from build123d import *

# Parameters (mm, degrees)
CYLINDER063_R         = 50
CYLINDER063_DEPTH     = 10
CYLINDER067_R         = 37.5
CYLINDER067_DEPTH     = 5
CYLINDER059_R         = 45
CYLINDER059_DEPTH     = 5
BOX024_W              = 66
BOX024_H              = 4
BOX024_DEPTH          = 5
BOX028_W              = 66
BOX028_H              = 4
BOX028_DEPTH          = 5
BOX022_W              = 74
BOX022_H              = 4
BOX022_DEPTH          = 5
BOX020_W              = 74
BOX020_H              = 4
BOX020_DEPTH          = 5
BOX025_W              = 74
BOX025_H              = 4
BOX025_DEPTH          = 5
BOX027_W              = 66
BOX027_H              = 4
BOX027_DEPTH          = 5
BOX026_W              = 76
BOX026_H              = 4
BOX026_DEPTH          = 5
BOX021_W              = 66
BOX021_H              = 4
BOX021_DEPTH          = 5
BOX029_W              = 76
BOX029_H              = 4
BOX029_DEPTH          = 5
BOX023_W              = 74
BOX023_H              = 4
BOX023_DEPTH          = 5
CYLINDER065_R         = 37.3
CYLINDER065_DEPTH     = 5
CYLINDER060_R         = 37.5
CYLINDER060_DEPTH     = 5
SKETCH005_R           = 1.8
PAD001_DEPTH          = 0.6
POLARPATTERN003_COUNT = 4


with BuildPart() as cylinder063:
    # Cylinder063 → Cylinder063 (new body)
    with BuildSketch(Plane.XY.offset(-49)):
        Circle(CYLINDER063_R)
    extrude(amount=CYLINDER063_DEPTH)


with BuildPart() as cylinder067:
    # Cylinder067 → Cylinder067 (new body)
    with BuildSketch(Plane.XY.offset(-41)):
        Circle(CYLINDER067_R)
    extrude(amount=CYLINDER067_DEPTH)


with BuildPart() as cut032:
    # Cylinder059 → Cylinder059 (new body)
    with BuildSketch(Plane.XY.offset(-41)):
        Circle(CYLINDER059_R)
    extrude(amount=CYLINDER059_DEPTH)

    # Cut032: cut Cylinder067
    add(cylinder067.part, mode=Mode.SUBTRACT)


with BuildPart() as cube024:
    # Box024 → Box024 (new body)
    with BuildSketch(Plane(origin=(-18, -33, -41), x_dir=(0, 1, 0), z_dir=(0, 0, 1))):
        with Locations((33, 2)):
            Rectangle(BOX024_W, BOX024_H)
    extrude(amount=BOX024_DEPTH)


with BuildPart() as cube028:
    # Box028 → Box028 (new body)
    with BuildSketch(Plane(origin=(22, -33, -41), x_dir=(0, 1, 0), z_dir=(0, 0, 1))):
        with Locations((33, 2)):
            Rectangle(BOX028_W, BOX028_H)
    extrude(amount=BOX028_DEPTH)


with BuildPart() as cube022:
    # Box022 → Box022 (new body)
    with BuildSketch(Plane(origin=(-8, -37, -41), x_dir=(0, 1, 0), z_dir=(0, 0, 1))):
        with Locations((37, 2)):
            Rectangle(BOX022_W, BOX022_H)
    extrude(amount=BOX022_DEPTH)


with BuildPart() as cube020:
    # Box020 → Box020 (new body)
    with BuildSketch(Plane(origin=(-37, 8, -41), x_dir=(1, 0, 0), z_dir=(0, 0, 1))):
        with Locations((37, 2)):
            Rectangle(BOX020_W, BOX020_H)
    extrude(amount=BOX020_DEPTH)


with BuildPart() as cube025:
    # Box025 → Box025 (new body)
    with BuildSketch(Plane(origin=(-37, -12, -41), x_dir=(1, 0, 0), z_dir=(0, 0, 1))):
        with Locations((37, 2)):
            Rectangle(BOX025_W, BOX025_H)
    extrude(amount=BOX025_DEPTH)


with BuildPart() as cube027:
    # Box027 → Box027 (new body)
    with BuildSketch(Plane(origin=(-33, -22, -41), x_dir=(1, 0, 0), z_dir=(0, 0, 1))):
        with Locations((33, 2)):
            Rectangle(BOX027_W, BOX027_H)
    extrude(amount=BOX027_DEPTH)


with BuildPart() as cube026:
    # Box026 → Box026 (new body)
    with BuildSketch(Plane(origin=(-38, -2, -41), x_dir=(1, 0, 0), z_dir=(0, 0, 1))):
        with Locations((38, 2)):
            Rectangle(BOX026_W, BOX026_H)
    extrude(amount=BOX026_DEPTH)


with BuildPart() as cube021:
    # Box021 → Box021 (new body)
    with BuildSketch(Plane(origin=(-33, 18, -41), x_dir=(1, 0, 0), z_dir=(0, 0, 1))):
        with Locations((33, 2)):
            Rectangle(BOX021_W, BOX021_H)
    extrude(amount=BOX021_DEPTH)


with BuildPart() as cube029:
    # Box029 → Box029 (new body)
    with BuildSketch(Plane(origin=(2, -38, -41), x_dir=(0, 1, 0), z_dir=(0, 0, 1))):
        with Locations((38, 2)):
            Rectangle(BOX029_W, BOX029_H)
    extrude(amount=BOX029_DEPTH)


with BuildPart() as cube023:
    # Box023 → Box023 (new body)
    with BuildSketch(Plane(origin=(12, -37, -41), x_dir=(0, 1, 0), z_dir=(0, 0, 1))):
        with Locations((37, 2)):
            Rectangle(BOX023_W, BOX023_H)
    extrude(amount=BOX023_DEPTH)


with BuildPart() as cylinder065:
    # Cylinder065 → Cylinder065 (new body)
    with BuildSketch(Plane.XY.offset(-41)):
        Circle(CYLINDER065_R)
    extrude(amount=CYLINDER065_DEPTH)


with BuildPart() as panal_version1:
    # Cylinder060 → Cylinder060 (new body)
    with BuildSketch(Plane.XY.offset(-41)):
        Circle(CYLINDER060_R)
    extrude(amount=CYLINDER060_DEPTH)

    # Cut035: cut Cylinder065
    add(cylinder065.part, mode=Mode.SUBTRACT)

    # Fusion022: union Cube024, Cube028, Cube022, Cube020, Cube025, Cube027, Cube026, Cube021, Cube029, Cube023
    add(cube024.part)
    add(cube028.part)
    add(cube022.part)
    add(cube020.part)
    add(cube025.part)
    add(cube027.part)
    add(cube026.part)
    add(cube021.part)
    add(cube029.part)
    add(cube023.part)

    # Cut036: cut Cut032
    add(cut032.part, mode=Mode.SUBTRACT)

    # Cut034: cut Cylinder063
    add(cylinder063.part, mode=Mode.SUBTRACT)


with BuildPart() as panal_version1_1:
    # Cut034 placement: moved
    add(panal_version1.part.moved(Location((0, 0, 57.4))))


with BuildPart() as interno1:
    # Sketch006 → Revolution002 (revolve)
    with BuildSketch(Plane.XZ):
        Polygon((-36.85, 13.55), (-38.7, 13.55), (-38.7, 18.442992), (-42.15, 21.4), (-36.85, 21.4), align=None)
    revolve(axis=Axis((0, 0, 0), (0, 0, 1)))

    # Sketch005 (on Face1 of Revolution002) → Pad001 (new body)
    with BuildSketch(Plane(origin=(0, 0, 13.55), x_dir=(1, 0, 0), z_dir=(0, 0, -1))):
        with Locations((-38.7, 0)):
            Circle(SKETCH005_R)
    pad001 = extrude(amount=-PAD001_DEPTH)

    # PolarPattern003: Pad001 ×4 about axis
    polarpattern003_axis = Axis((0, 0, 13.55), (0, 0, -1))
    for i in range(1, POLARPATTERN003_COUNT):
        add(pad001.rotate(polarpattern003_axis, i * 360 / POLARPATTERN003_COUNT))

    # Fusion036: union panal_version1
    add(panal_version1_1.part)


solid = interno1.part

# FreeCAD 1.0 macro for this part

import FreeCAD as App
import Part
import Sketcher
from FreeCAD import Vector
Q = App.Units.Quantity

doc = App.newDocument("Part")
body = doc.addObject("PartDesign::Body", "Body")

sketch1 = body.newObject("Sketcher::SketchObject", "Sketch")
sketch1.AttachmentSupport = (doc.getObject("XY_Plane"), [""])
sketch1.MapMode = "FlatFace"
sketch1.AttachmentOffset = App.Placement(Vector(0, 0, -49), App.Rotation())
sketch1.addGeometry(Part.Circle(Vector(0, 0, 0), Vector(0, 0, 1), 50), False)
sketch1.addConstraint([
    Sketcher.Constraint("Coincident", 0, 3, -1, 1),
    Sketcher.Constraint("Diameter", 0, 100.0),
])
pad1 = body.newObject("PartDesign::Pad", "Pad")
pad1.Profile = sketch1
pad1.Length = 10
body2 = doc.addObject("PartDesign::Body", "Body001")

sketch2 = body2.newObject("Sketcher::SketchObject", "Sketch001")
sketch2.AttachmentSupport = (doc.getObject("XY_Plane001"), [""])
sketch2.MapMode = "FlatFace"
sketch2.AttachmentOffset = App.Placement(Vector(0, 0, -41), App.Rotation())
sketch2.addGeometry(Part.Circle(Vector(0, 0, 0), Vector(0, 0, 1), 38), False)
sketch2.addConstraint([
    Sketcher.Constraint("Coincident", 0, 3, -1, 1),
    Sketcher.Constraint("Diameter", 0, 75.0),
])
pad2 = body2.newObject("PartDesign::Pad", "Pad001")
pad2.Profile = sketch2
pad2.Length = 5
body3 = doc.addObject("PartDesign::Body", "Body002")

sketch3 = body3.newObject("Sketcher::SketchObject", "Sketch002")
sketch3.AttachmentSupport = (doc.getObject("XY_Plane002"), [""])
sketch3.MapMode = "FlatFace"
sketch3.AttachmentOffset = App.Placement(Vector(0, 0, -41), App.Rotation())
sketch3.addGeometry(Part.Circle(Vector(0, 0, 0), Vector(0, 0, 1), 45), False)
sketch3.addConstraint([
    Sketcher.Constraint("Coincident", 0, 3, -1, 1),
    Sketcher.Constraint("Diameter", 0, 90.0),
])
pad3 = body3.newObject("PartDesign::Pad", "Pad002")
pad3.Profile = sketch3
pad3.Length = 5
doc.recompute()

boolean = body3.newObject("PartDesign::Boolean", "Boolean")
boolean.Type = "Cut"
boolean.addObjects([body2])
body4 = doc.addObject("PartDesign::Body", "Body003")

sketch4 = body4.newObject("Sketcher::SketchObject", "Sketch003")
sketch4.AttachmentSupport = (doc.getObject("XY_Plane003"), [""])
sketch4.MapMode = "FlatFace"
sketch4.AttachmentOffset = App.Placement(Vector(0, 0, -41), App.Rotation())
sketch4.addGeometry([
    Part.LineSegment(Vector(-22, -33, 0), Vector(-18, -33, 0)),
    Part.LineSegment(Vector(-18, -33, 0), Vector(-18, 33, 0)),
    Part.LineSegment(Vector(-18, 33, 0), Vector(-22, 33, 0)),
    Part.LineSegment(Vector(-22, 33, 0), Vector(-22, -33, 0)),
], False)
sketch4.addConstraint([
    Sketcher.Constraint("Coincident", 0, 2, 1, 1),
    Sketcher.Constraint("Coincident", 1, 2, 2, 1),
    Sketcher.Constraint("Coincident", 2, 2, 3, 1),
    Sketcher.Constraint("Coincident", 3, 2, 0, 1),
    Sketcher.Constraint("Horizontal", 0),
    Sketcher.Constraint("Vertical", 1),
    Sketcher.Constraint("Horizontal", 2),
    Sketcher.Constraint("Vertical", 3),
    Sketcher.Constraint("DistanceX", 0, 1, 0, 2, 4.0),
    Sketcher.Constraint("DistanceY", 1, 1, 1, 2, 66.0),
    Sketcher.Constraint("DistanceX", 0, 2, -1, 1, 18.0),
    Sketcher.Constraint("DistanceY", 0, 2, -1, 1, 33.0),
])
pad4 = body4.newObject("PartDesign::Pad", "Pad003")
pad4.Profile = sketch4
pad4.Length = 5
body5 = doc.addObject("PartDesign::Body", "Body004")

sketch5 = body5.newObject("Sketcher::SketchObject", "Sketch004")
sketch5.AttachmentSupport = (doc.getObject("XY_Plane004"), [""])
sketch5.MapMode = "FlatFace"
sketch5.AttachmentOffset = App.Placement(Vector(0, 0, -41), App.Rotation())
sketch5.addGeometry([
    Part.LineSegment(Vector(18, -33, 0), Vector(22, -33, 0)),
    Part.LineSegment(Vector(22, -33, 0), Vector(22, 33, 0)),
    Part.LineSegment(Vector(22, 33, 0), Vector(18, 33, 0)),
    Part.LineSegment(Vector(18, 33, 0), Vector(18, -33, 0)),
], False)
sketch5.addConstraint([
    Sketcher.Constraint("Coincident", 0, 2, 1, 1),
    Sketcher.Constraint("Coincident", 1, 2, 2, 1),
    Sketcher.Constraint("Coincident", 2, 2, 3, 1),
    Sketcher.Constraint("Coincident", 3, 2, 0, 1),
    Sketcher.Constraint("Horizontal", 0),
    Sketcher.Constraint("Vertical", 1),
    Sketcher.Constraint("Horizontal", 2),
    Sketcher.Constraint("Vertical", 3),
    Sketcher.Constraint("DistanceX", 0, 1, 0, 2, 4.0),
    Sketcher.Constraint("DistanceY", 1, 1, 1, 2, 66.0),
    Sketcher.Constraint("DistanceX", -1, 1, 0, 2, 22.0),
    Sketcher.Constraint("DistanceY", 0, 2, -1, 1, 33.0),
])
pad5 = body5.newObject("PartDesign::Pad", "Pad004")
pad5.Profile = sketch5
pad5.Length = 5
body6 = doc.addObject("PartDesign::Body", "Body005")

sketch6 = body6.newObject("Sketcher::SketchObject", "Sketch005")
sketch6.AttachmentSupport = (doc.getObject("XY_Plane005"), [""])
sketch6.MapMode = "FlatFace"
sketch6.AttachmentOffset = App.Placement(Vector(0, 0, -41), App.Rotation())
sketch6.addGeometry([
    Part.LineSegment(Vector(-12, -37, 0), Vector(-8, -37, 0)),
    Part.LineSegment(Vector(-8, -37, 0), Vector(-8, 37, 0)),
    Part.LineSegment(Vector(-8, 37, 0), Vector(-12, 37, 0)),
    Part.LineSegment(Vector(-12, 37, 0), Vector(-12, -37, 0)),
], False)
sketch6.addConstraint([
    Sketcher.Constraint("Coincident", 0, 2, 1, 1),
    Sketcher.Constraint("Coincident", 1, 2, 2, 1),
    Sketcher.Constraint("Coincident", 2, 2, 3, 1),
    Sketcher.Constraint("Coincident", 3, 2, 0, 1),
    Sketcher.Constraint("Horizontal", 0),
    Sketcher.Constraint("Vertical", 1),
    Sketcher.Constraint("Horizontal", 2),
    Sketcher.Constraint("Vertical", 3),
    Sketcher.Constraint("DistanceX", 0, 1, 0, 2, 4.0),
    Sketcher.Constraint("DistanceY", 1, 1, 1, 2, 74.0),
    Sketcher.Constraint("DistanceX", 0, 2, -1, 1, 8.0),
    Sketcher.Constraint("DistanceY", 0, 2, -1, 1, 37.0),
])
pad6 = body6.newObject("PartDesign::Pad", "Pad005")
pad6.Profile = sketch6
pad6.Length = 5
body7 = doc.addObject("PartDesign::Body", "Body006")

sketch7 = body7.newObject("Sketcher::SketchObject", "Sketch006")
sketch7.AttachmentSupport = (doc.getObject("XY_Plane006"), [""])
sketch7.MapMode = "FlatFace"
sketch7.AttachmentOffset = App.Placement(Vector(0, 0, -41), App.Rotation())
sketch7.addGeometry([
    Part.LineSegment(Vector(-37, 12, 0), Vector(-37, 8, 0)),
    Part.LineSegment(Vector(-37, 8, 0), Vector(37, 8, 0)),
    Part.LineSegment(Vector(37, 8, 0), Vector(37, 12, 0)),
    Part.LineSegment(Vector(37, 12, 0), Vector(-37, 12, 0)),
], False)
sketch7.addConstraint([
    Sketcher.Constraint("Coincident", 0, 2, 1, 1),
    Sketcher.Constraint("Coincident", 1, 2, 2, 1),
    Sketcher.Constraint("Coincident", 2, 2, 3, 1),
    Sketcher.Constraint("Coincident", 3, 2, 0, 1),
    Sketcher.Constraint("Vertical", 0),
    Sketcher.Constraint("Horizontal", 1),
    Sketcher.Constraint("Vertical", 2),
    Sketcher.Constraint("Horizontal", 3),
    Sketcher.Constraint("DistanceX", 1, 1, 1, 2, 74.0),
    Sketcher.Constraint("DistanceY", 0, 2, 0, 1, 4.0),
    Sketcher.Constraint("DistanceX", 0, 2, -1, 1, 37.0),
    Sketcher.Constraint("DistanceY", -1, 1, 0, 2, 8.0),
])
pad7 = body7.newObject("PartDesign::Pad", "Pad006")
pad7.Profile = sketch7
pad7.Length = 5
body8 = doc.addObject("PartDesign::Body", "Body007")

sketch8 = body8.newObject("Sketcher::SketchObject", "Sketch007")
sketch8.AttachmentSupport = (doc.getObject("XY_Plane007"), [""])
sketch8.MapMode = "FlatFace"
sketch8.AttachmentOffset = App.Placement(Vector(0, 0, -41), App.Rotation())
sketch8.addGeometry([
    Part.LineSegment(Vector(-37, -8, 0), Vector(-37, -12, 0)),
    Part.LineSegment(Vector(-37, -12, 0), Vector(37, -12, 0)),
    Part.LineSegment(Vector(37, -12, 0), Vector(37, -8, 0)),
    Part.LineSegment(Vector(37, -8, 0), Vector(-37, -8, 0)),
], False)
sketch8.addConstraint([
    Sketcher.Constraint("Coincident", 0, 2, 1, 1),
    Sketcher.Constraint("Coincident", 1, 2, 2, 1),
    Sketcher.Constraint("Coincident", 2, 2, 3, 1),
    Sketcher.Constraint("Coincident", 3, 2, 0, 1),
    Sketcher.Constraint("Vertical", 0),
    Sketcher.Constraint("Horizontal", 1),
    Sketcher.Constraint("Vertical", 2),
    Sketcher.Constraint("Horizontal", 3),
    Sketcher.Constraint("DistanceX", 1, 1, 1, 2, 74.0),
    Sketcher.Constraint("DistanceY", 0, 2, 0, 1, 4.0),
    Sketcher.Constraint("DistanceX", 0, 2, -1, 1, 37.0),
    Sketcher.Constraint("DistanceY", 0, 2, -1, 1, 12.0),
])
pad8 = body8.newObject("PartDesign::Pad", "Pad007")
pad8.Profile = sketch8
pad8.Length = 5
body9 = doc.addObject("PartDesign::Body", "Body008")

sketch9 = body9.newObject("Sketcher::SketchObject", "Sketch008")
sketch9.AttachmentSupport = (doc.getObject("XY_Plane008"), [""])
sketch9.MapMode = "FlatFace"
sketch9.AttachmentOffset = App.Placement(Vector(0, 0, -41), App.Rotation())
sketch9.addGeometry([
    Part.LineSegment(Vector(-33, -18, 0), Vector(-33, -22, 0)),
    Part.LineSegment(Vector(-33, -22, 0), Vector(33, -22, 0)),
    Part.LineSegment(Vector(33, -22, 0), Vector(33, -18, 0)),
    Part.LineSegment(Vector(33, -18, 0), Vector(-33, -18, 0)),
], False)
sketch9.addConstraint([
    Sketcher.Constraint("Coincident", 0, 2, 1, 1),
    Sketcher.Constraint("Coincident", 1, 2, 2, 1),
    Sketcher.Constraint("Coincident", 2, 2, 3, 1),
    Sketcher.Constraint("Coincident", 3, 2, 0, 1),
    Sketcher.Constraint("Vertical", 0),
    Sketcher.Constraint("Horizontal", 1),
    Sketcher.Constraint("Vertical", 2),
    Sketcher.Constraint("Horizontal", 3),
    Sketcher.Constraint("DistanceX", 1, 1, 1, 2, 66.0),
    Sketcher.Constraint("DistanceY", 0, 2, 0, 1, 4.0),
    Sketcher.Constraint("DistanceX", 0, 2, -1, 1, 33.0),
    Sketcher.Constraint("DistanceY", 0, 2, -1, 1, 22.0),
])
pad9 = body9.newObject("PartDesign::Pad", "Pad008")
pad9.Profile = sketch9
pad9.Length = 5
body10 = doc.addObject("PartDesign::Body", "Body009")

sketch10 = body10.newObject("Sketcher::SketchObject", "Sketch009")
sketch10.AttachmentSupport = (doc.getObject("XY_Plane009"), [""])
sketch10.MapMode = "FlatFace"
sketch10.AttachmentOffset = App.Placement(Vector(0, 0, -41), App.Rotation())
sketch10.addGeometry([
    Part.LineSegment(Vector(-38, 2, 0), Vector(-38, -2, 0)),
    Part.LineSegment(Vector(-38, -2, 0), Vector(38, -2, 0)),
    Part.LineSegment(Vector(38, -2, 0), Vector(38, 2, 0)),
    Part.LineSegment(Vector(38, 2, 0), Vector(-38, 2, 0)),
], False)
sketch10.addConstraint([
    Sketcher.Constraint("Coincident", 0, 2, 1, 1),
    Sketcher.Constraint("Coincident", 1, 2, 2, 1),
    Sketcher.Constraint("Coincident", 2, 2, 3, 1),
    Sketcher.Constraint("Coincident", 3, 2, 0, 1),
    Sketcher.Constraint("Vertical", 0),
    Sketcher.Constraint("Horizontal", 1),
    Sketcher.Constraint("Vertical", 2),
    Sketcher.Constraint("Horizontal", 3),
    Sketcher.Constraint("Symmetric", 0, 2, 2, 2, -1, 1),
    Sketcher.Constraint("DistanceX", 1, 1, 1, 2, 76.0),
    Sketcher.Constraint("DistanceY", 0, 2, 0, 1, 4.0),
])
pad10 = body10.newObject("PartDesign::Pad", "Pad009")
pad10.Profile = sketch10
pad10.Length = 5
body11 = doc.addObject("PartDesign::Body", "Body010")

sketch11 = body11.newObject("Sketcher::SketchObject", "Sketch010")
sketch11.AttachmentSupport = (doc.getObject("XY_Plane010"), [""])
sketch11.MapMode = "FlatFace"
sketch11.AttachmentOffset = App.Placement(Vector(0, 0, -41), App.Rotation())
sketch11.addGeometry([
    Part.LineSegment(Vector(-33, 22, 0), Vector(-33, 18, 0)),
    Part.LineSegment(Vector(-33, 18, 0), Vector(33, 18, 0)),
    Part.LineSegment(Vector(33, 18, 0), Vector(33, 22, 0)),
    Part.LineSegment(Vector(33, 22, 0), Vector(-33, 22, 0)),
], False)
sketch11.addConstraint([
    Sketcher.Constraint("Coincident", 0, 2, 1, 1),
    Sketcher.Constraint("Coincident", 1, 2, 2, 1),
    Sketcher.Constraint("Coincident", 2, 2, 3, 1),
    Sketcher.Constraint("Coincident", 3, 2, 0, 1),
    Sketcher.Constraint("Vertical", 0),
    Sketcher.Constraint("Horizontal", 1),
    Sketcher.Constraint("Vertical", 2),
    Sketcher.Constraint("Horizontal", 3),
    Sketcher.Constraint("DistanceX", 1, 1, 1, 2, 66.0),
    Sketcher.Constraint("DistanceY", 0, 2, 0, 1, 4.0),
    Sketcher.Constraint("DistanceX", 0, 2, -1, 1, 33.0),
    Sketcher.Constraint("DistanceY", -1, 1, 0, 2, 18.0),
])
pad11 = body11.newObject("PartDesign::Pad", "Pad010")
pad11.Profile = sketch11
pad11.Length = 5
body12 = doc.addObject("PartDesign::Body", "Body011")

sketch12 = body12.newObject("Sketcher::SketchObject", "Sketch011")
sketch12.AttachmentSupport = (doc.getObject("XY_Plane011"), [""])
sketch12.MapMode = "FlatFace"
sketch12.AttachmentOffset = App.Placement(Vector(0, 0, -41), App.Rotation())
sketch12.addGeometry([
    Part.LineSegment(Vector(-2, -38, 0), Vector(2, -38, 0)),
    Part.LineSegment(Vector(2, -38, 0), Vector(2, 38, 0)),
    Part.LineSegment(Vector(2, 38, 0), Vector(-2, 38, 0)),
    Part.LineSegment(Vector(-2, 38, 0), Vector(-2, -38, 0)),
], False)
sketch12.addConstraint([
    Sketcher.Constraint("Coincident", 0, 2, 1, 1),
    Sketcher.Constraint("Coincident", 1, 2, 2, 1),
    Sketcher.Constraint("Coincident", 2, 2, 3, 1),
    Sketcher.Constraint("Coincident", 3, 2, 0, 1),
    Sketcher.Constraint("Horizontal", 0),
    Sketcher.Constraint("Vertical", 1),
    Sketcher.Constraint("Horizontal", 2),
    Sketcher.Constraint("Vertical", 3),
    Sketcher.Constraint("Symmetric", 0, 2, 2, 2, -1, 1),
    Sketcher.Constraint("DistanceX", 0, 1, 0, 2, 4.0),
    Sketcher.Constraint("DistanceY", 1, 1, 1, 2, 76.0),
])
pad12 = body12.newObject("PartDesign::Pad", "Pad011")
pad12.Profile = sketch12
pad12.Length = 5
body13 = doc.addObject("PartDesign::Body", "Body012")

sketch13 = body13.newObject("Sketcher::SketchObject", "Sketch012")
sketch13.AttachmentSupport = (doc.getObject("XY_Plane012"), [""])
sketch13.MapMode = "FlatFace"
sketch13.AttachmentOffset = App.Placement(Vector(0, 0, -41), App.Rotation())
sketch13.addGeometry([
    Part.LineSegment(Vector(8, -37, 0), Vector(12, -37, 0)),
    Part.LineSegment(Vector(12, -37, 0), Vector(12, 37, 0)),
    Part.LineSegment(Vector(12, 37, 0), Vector(8, 37, 0)),
    Part.LineSegment(Vector(8, 37, 0), Vector(8, -37, 0)),
], False)
sketch13.addConstraint([
    Sketcher.Constraint("Coincident", 0, 2, 1, 1),
    Sketcher.Constraint("Coincident", 1, 2, 2, 1),
    Sketcher.Constraint("Coincident", 2, 2, 3, 1),
    Sketcher.Constraint("Coincident", 3, 2, 0, 1),
    Sketcher.Constraint("Horizontal", 0),
    Sketcher.Constraint("Vertical", 1),
    Sketcher.Constraint("Horizontal", 2),
    Sketcher.Constraint("Vertical", 3),
    Sketcher.Constraint("DistanceX", 0, 1, 0, 2, 4.0),
    Sketcher.Constraint("DistanceY", 1, 1, 1, 2, 74.0),
    Sketcher.Constraint("DistanceX", -1, 1, 0, 2, 12.0),
    Sketcher.Constraint("DistanceY", 0, 2, -1, 1, 37.0),
])
pad13 = body13.newObject("PartDesign::Pad", "Pad012")
pad13.Profile = sketch13
pad13.Length = 5
body14 = doc.addObject("PartDesign::Body", "Body013")

sketch14 = body14.newObject("Sketcher::SketchObject", "Sketch013")
sketch14.AttachmentSupport = (doc.getObject("XY_Plane013"), [""])
sketch14.MapMode = "FlatFace"
sketch14.AttachmentOffset = App.Placement(Vector(0, 0, -41), App.Rotation())
sketch14.addGeometry(Part.Circle(Vector(0, 0, 0), Vector(0, 0, 1), 37), False)
sketch14.addConstraint([
    Sketcher.Constraint("Coincident", 0, 3, -1, 1),
    Sketcher.Constraint("Diameter", 0, 74.6),
])
pad14 = body14.newObject("PartDesign::Pad", "Pad013")
pad14.Profile = sketch14
pad14.Length = 5
body15 = doc.addObject("PartDesign::Body", "Body014")

sketch15 = body15.newObject("Sketcher::SketchObject", "Sketch014")
sketch15.AttachmentSupport = (doc.getObject("XY_Plane014"), [""])
sketch15.MapMode = "FlatFace"
sketch15.AttachmentOffset = App.Placement(Vector(0, 0, -41), App.Rotation())
sketch15.addGeometry(Part.Circle(Vector(0, 0, 0), Vector(0, 0, 1), 38), False)
sketch15.addConstraint([
    Sketcher.Constraint("Coincident", 0, 3, -1, 1),
    Sketcher.Constraint("Diameter", 0, 75.0),
])
pad15 = body15.newObject("PartDesign::Pad", "Pad014")
pad15.Profile = sketch15
pad15.Length = 5
doc.recompute()

boolean2 = body15.newObject("PartDesign::Boolean", "Boolean001")
boolean2.Type = "Cut"
boolean2.addObjects([body14])
doc.recompute()

boolean3 = body15.newObject("PartDesign::Boolean", "Boolean002")
boolean3.Type = "Fuse"
boolean3.addObjects([body4])
doc.recompute()

boolean4 = body15.newObject("PartDesign::Boolean", "Boolean003")
boolean4.Type = "Fuse"
boolean4.addObjects([body5])
doc.recompute()

boolean5 = body15.newObject("PartDesign::Boolean", "Boolean004")
boolean5.Type = "Fuse"
boolean5.addObjects([body6])
doc.recompute()

boolean6 = body15.newObject("PartDesign::Boolean", "Boolean005")
boolean6.Type = "Fuse"
boolean6.addObjects([body7])
doc.recompute()

boolean7 = body15.newObject("PartDesign::Boolean", "Boolean006")
boolean7.Type = "Fuse"
boolean7.addObjects([body8])
doc.recompute()

boolean8 = body15.newObject("PartDesign::Boolean", "Boolean007")
boolean8.Type = "Fuse"
boolean8.addObjects([body9])
doc.recompute()

boolean9 = body15.newObject("PartDesign::Boolean", "Boolean008")
boolean9.Type = "Fuse"
boolean9.addObjects([body10])
doc.recompute()

boolean10 = body15.newObject("PartDesign::Boolean", "Boolean009")
boolean10.Type = "Fuse"
boolean10.addObjects([body11])
doc.recompute()

boolean11 = body15.newObject("PartDesign::Boolean", "Boolean010")
boolean11.Type = "Fuse"
boolean11.addObjects([body12])
doc.recompute()

boolean12 = body15.newObject("PartDesign::Boolean", "Boolean011")
boolean12.Type = "Fuse"
boolean12.addObjects([body13])
doc.recompute()

boolean13 = body15.newObject("PartDesign::Boolean", "Boolean012")
boolean13.Type = "Cut"
boolean13.addObjects([body3])
doc.recompute()

boolean14 = body15.newObject("PartDesign::Boolean", "Boolean013")
boolean14.Type = "Cut"
boolean14.addObjects([body])
body16 = doc.addObject("PartDesign::Body", "Body015")
doc.recompute()

body15.Placement = App.Placement(Vector(0, 0, 57.4), App.Rotation(Vector(0, 0, 1), 0))
boolean15 = body16.newObject("PartDesign::Boolean", "Boolean014")
boolean15.Type = "Fuse"
boolean15.addObjects([body15])
body17 = doc.addObject("PartDesign::Body", "Body016")

sketch16 = body17.newObject("Sketcher::SketchObject", "Sketch015")
sketch16.AttachmentSupport = (doc.getObject("XZ_Plane016"), [""])
sketch16.MapMode = "FlatFace"
sketch16.addGeometry([
    Part.LineSegment(Vector(-38.7, 13.6, 0), Vector(-36.9, 13.6, 0)),
    Part.LineSegment(Vector(-36.9, 13.6, 0), Vector(-36.9, 21.4, 0)),
    Part.LineSegment(Vector(-36.9, 21.4, 0), Vector(-42.1, 21.4, 0)),
    Part.LineSegment(Vector(-42.1, 21.4, 0), Vector(-38.7, 18.4, 0)),
    Part.LineSegment(Vector(-38.7, 18.4, 0), Vector(-38.7, 13.6, 0)),
], False)
sketch16.addConstraint([
    Sketcher.Constraint("Coincident", 0, 2, 1, 1),
    Sketcher.Constraint("Coincident", 1, 2, 2, 1),
    Sketcher.Constraint("Coincident", 2, 2, 3, 1),
    Sketcher.Constraint("Coincident", 3, 2, 4, 1),
    Sketcher.Constraint("Coincident", 4, 2, 0, 1),
    Sketcher.Constraint("Horizontal", 0),
    Sketcher.Constraint("Vertical", 1),
    Sketcher.Constraint("Horizontal", 2),
    Sketcher.Constraint("Vertical", 4),
    Sketcher.Constraint("DistanceX", 2, 2, 2, 1, 5.3),
    Sketcher.Constraint("Angle", 3, Q("-40.600004 deg")),
    Sketcher.Constraint("DistanceX", 0, 1, 0, 2, 1.85),
    Sketcher.Constraint("DistanceY", 1, 1, 1, 2, 7.85),
    Sketcher.Constraint("DistanceY", -1, 1, 1, 2, 21.4),
    Sketcher.Constraint("DistanceX", 3, 2, -1, 1, 38.7),
])
revolution = body17.newObject("PartDesign::Revolution", "Revolution")
revolution.Profile = sketch16
revolution.ReferenceAxis = (sketch16, ["V_Axis"])
revolution.Angle = 360

sketch17 = body17.newObject("Sketcher::SketchObject", "Sketch016")
sketch17.AttachmentSupport = (doc.getObject("XY_Plane016"), [""])
sketch17.MapMode = "FlatFace"
sketch17.AttachmentOffset = App.Placement(Vector(0, 0, 13.55), App.Rotation())
sketch17.addGeometry(Part.Circle(Vector(-38.7, 0, 0), Vector(0, 0, 1), 1.8), False)
sketch17.addConstraint([
    Sketcher.Constraint("PointOnObject", 0, 3, -1),
    Sketcher.Constraint("Diameter", 0, 3.6),
    Sketcher.Constraint("DistanceX", 0, 3, -1, 1, 38.7),
])
pad16 = body17.newObject("PartDesign::Pad", "Pad015")
pad16.Profile = sketch17
pad16.Length = 0.6
doc.recompute()

polarpattern = body17.newObject("PartDesign::PolarPattern", "PolarPattern")
polarpattern.Originals = [pad16]
polarpattern.Axis = (doc.getObject("Z_Axis016"), [""])
polarpattern.Angle = 360
polarpattern.Occurrences = 4
body17.Tip = polarpattern
doc.recompute()

boolean16 = body17.newObject("PartDesign::Boolean", "Boolean015")
boolean16.Type = "Fuse"
boolean16.addObjects([body16])

doc.recompute()
